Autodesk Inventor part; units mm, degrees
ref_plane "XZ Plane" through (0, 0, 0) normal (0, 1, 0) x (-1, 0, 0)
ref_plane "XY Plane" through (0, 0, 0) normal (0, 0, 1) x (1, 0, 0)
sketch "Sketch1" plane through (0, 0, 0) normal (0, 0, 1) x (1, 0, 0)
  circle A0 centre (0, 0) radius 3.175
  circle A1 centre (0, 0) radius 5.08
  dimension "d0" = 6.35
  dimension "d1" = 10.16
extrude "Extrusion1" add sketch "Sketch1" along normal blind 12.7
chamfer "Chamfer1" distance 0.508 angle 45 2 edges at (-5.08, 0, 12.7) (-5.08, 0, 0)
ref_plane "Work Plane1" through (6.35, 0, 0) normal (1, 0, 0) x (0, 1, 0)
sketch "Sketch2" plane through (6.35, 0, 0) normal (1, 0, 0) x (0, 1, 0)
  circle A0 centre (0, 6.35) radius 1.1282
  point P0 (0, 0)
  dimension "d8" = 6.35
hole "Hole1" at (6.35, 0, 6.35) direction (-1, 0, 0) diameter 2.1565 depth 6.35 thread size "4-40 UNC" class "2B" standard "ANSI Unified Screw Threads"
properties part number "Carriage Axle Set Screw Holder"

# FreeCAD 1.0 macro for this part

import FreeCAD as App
import Part
import Sketcher
from FreeCAD import Vector
Q = App.Units.Quantity


def edges_at(feature, points):
    """Names of the edges that pass closest to the given points."""
    edges = feature.Shape.Edges
    near = lambda p: min(range(len(edges)), key=lambda i: edges[i].distToShape(Part.Vertex(*p))[0])
    return sorted({f"Edge{near(p) + 1}" for p in points})

doc = App.newDocument("Part")
body = doc.addObject("PartDesign::Body", "Body")

# Sketch on XY plane
sketch1 = body.newObject("Sketcher::SketchObject", "Sketch")
sketch1.AttachmentSupport = (doc.getObject("XY_Plane"), [""])
sketch1.MapMode = "FlatFace"
sketch1.addGeometry([
    Part.Circle(Vector(0, 0, 0), Vector(0, 0, 1), 5.1),
    Part.Circle(Vector(0, 0, 0), Vector(0, 0, 1), 3.2),
], False)
sketch1.addConstraint([
    Sketcher.Constraint("Coincident", 0, 3, -1, 1),
    Sketcher.Constraint("Coincident", 1, 3, -1, 1),
    Sketcher.Constraint("Diameter", 0, Q("0.4 in")),
    Sketcher.Constraint("Diameter", 1, Q("0.25 in")),
])
pad1 = body.newObject("PartDesign::Pad", "Pad")
pad1.Profile = sketch1
pad1.Length = Q("0.5 in")
doc.recompute()

chamfer = body.newObject("PartDesign::Chamfer", "Chamfer")
chamfer.Base = (pad1, edges_at(pad1, [(-5.08, 0, 12.7), (-5.08, 0, 0)]))
chamfer.Size = Q("0.02 in")

# Sketch on YZ plane
sketch2 = body.newObject("Sketcher::SketchObject", "Sketch001")
sketch2.AttachmentSupport = (doc.getObject("YZ_Plane"), [""])
sketch2.MapMode = "FlatFace"
sketch2.AttachmentOffset = App.Placement(Vector(0, 0, 0.25 * 25.4), App.Rotation())
sketch2.addGeometry(Part.Circle(Vector(0, 6.3, 0), Vector(0, 0, 1), 1.1), False)
sketch2.addConstraint([
    Sketcher.Constraint("PointOnObject", 0, 3, -2),
    Sketcher.Constraint("Diameter", 0, Q("0.0849 in")),
    Sketcher.Constraint("DistanceY", -1, 1, 0, 3, Q("0.25 in")),
])
doc.recompute()
hole = body.newObject("PartDesign::Hole", "Hole")
hole.Profile = sketch2
hole.ThreadType = "None"
hole.Diameter = Q("0.0849016 in")
hole.DepthType = "Dimension"
hole.Depth = Q("0.25 in")
hole.DrillPoint = "Flat"

doc.recompute()
